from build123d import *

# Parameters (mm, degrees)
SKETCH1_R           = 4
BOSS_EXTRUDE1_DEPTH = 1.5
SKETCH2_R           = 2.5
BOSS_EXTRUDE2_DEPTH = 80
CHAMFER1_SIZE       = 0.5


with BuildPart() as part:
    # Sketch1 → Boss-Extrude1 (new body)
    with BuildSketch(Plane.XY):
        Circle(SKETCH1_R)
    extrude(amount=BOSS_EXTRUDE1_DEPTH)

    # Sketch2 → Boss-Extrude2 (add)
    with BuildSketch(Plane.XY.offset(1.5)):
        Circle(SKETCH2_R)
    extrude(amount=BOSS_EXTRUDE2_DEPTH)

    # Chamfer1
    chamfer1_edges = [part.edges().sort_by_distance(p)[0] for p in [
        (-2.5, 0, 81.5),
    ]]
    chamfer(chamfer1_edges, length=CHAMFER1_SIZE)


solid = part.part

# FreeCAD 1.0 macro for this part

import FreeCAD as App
import Part
import Sketcher
from FreeCAD import Vector
Q = App.Units.Quantity


def edges_at(feature, points):
    """Names of the edges that pass closest to the given points."""
    edges = feature.Shape.Edges
    near = lambda p: min(range(len(edges)), key=lambda i: edges[i].distToShape(Part.Vertex(*p))[0])
    return sorted({f"Edge{near(p) + 1}" for p in points})

doc = App.newDocument("Part")
body = doc.addObject("PartDesign::Body", "Body")

# Sketch on XY plane
sketch1 = body.newObject("Sketcher::SketchObject", "Sketch")
sketch1.AttachmentSupport = (doc.getObject("XY_Plane"), [""])
sketch1.MapMode = "FlatFace"
sketch1.addGeometry(Part.Circle(Vector(0, 0, 0), Vector(0, 0, 1), 4), False)
sketch1.addConstraint([
    Sketcher.Constraint("Coincident", 0, 3, -1, 1),
    Sketcher.Constraint("Diameter", 0, Q("8 mm")),
])
pad1 = body.newObject("PartDesign::Pad", "Pad")
pad1.Profile = sketch1
pad1.Length = 1.5

# Sketch on XY plane
sketch2 = body.newObject("Sketcher::SketchObject", "Sketch001")
sketch2.AttachmentSupport = (doc.getObject("XY_Plane"), [""])
sketch2.MapMode = "FlatFace"
sketch2.AttachmentOffset = App.Placement(Vector(0, 0, 1.5), App.Rotation())
sketch2.addGeometry(Part.Circle(Vector(0, 0, 0), Vector(0, 0, 1), 2.5), False)
sketch2.addConstraint([
    Sketcher.Constraint("Coincident", 0, 3, -1, 1),
    Sketcher.Constraint("Diameter", 0, Q("5 mm")),
])
pad2 = body.newObject("PartDesign::Pad", "Pad001")
pad2.Profile = sketch2
pad2.Length = 80
doc.recompute()

chamfer = body.newObject("PartDesign::Chamfer", "Chamfer")
chamfer.Base = (pad2, edges_at(pad2, [(-2.5, 0, 81.5)]))
chamfer.Size = 0.5

doc.recompute()
